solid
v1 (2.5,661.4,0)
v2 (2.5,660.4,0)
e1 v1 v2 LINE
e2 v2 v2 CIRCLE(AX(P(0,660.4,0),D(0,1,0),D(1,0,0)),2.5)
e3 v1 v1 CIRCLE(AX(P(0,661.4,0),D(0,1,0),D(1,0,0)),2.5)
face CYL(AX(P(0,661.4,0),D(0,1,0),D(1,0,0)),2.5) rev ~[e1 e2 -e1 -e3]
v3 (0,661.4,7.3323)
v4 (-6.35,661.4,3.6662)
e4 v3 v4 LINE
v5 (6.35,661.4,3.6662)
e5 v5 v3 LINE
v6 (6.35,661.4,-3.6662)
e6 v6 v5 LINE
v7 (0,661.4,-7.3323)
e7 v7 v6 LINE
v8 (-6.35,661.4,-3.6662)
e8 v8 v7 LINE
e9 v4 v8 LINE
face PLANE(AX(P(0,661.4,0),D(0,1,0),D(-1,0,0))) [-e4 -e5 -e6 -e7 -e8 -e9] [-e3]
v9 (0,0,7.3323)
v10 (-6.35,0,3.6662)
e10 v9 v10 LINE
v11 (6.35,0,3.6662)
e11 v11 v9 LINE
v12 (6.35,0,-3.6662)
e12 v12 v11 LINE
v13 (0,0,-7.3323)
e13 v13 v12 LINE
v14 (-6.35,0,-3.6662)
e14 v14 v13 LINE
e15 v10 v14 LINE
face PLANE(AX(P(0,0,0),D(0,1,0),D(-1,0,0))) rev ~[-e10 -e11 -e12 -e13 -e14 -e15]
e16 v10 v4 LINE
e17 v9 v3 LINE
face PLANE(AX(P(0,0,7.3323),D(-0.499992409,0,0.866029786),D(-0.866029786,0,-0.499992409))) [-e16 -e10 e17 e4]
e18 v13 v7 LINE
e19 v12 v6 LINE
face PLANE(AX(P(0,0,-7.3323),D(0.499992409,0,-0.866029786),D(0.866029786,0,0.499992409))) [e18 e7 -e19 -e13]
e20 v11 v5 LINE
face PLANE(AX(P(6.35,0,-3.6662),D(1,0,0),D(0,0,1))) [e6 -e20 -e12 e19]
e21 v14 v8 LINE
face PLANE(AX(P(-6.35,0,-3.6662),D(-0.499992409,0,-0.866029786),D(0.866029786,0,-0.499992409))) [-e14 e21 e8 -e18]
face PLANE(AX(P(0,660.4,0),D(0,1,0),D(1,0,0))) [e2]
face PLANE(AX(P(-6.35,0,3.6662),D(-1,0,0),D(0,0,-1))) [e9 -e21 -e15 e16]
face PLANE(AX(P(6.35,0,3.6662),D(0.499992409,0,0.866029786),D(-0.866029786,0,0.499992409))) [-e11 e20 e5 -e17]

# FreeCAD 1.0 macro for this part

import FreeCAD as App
import Part
import Sketcher

V = App.Vector
Q = App.Units.Quantity


def add_polygon(sketch, points):
    """Adds a closed chain of lines whose ends are joined by coincident constraints."""
    first, n = sketch.GeometryCount, len(points)
    for a, b in zip(points, points[1:] + points[:1]):
        sketch.addGeometry(Part.LineSegment(App.Vector(*a, 0), App.Vector(*b, 0)), False)
    for i in range(n):
        sketch.addConstraint(Sketcher.Constraint("Coincident", first + i, 2, first + (i + 1) % n, 1))

doc = App.newDocument("Part")
params = doc.addObject("Spreadsheet::Sheet", "Params")
for row, (alias, value) in enumerate([
    ("pad1_length", "661.4 mm"),
    ("sketch2_diameter", "5 mm"),
    ("pocket1_length", "1 mm"),
], start=1):
    params.set(f"A{row}", alias)
    params.set(f"B{row}", "=" + value)
    params.setAlias(f"B{row}", alias)

body = doc.addObject("PartDesign::Body", "Body")

sketch1 = doc.addObject("Sketcher::SketchObject", "Sketch")
body.addObject(sketch1)
sketch1.AttachmentSupport = (doc.XZ_Plane, [""])
sketch1.MapMode = "FlatFace"
add_polygon(sketch1, [(6, -4), (0, -7), (-6, -4), (-6, 4), (0, 7), (6, 4)])
sketch1.addConstraint(Sketcher.Constraint("Vertical", 2))
sketch1.addConstraint(Sketcher.Constraint("Vertical", 5))
sketch1.addConstraint(Sketcher.Constraint("Symmetric", 0, 2, 3, 2, -1, 1))
sketch1.addConstraint(Sketcher.Constraint("Symmetric", 1, 2, 4, 2, -1, 1))
sketch1.addConstraint(Sketcher.Constraint("PointOnObject", 0, 2, -2))
sketch1.addConstraint(Sketcher.Constraint("Parallel", 0, 3))
sketch1.addConstraint(Sketcher.Constraint("Horizontal", 2, 2, 4, 2))
sketch1.addConstraint(Sketcher.Constraint("DistanceX", 2, 2, 4, 2, Q("12.7 mm")))
sketch1.addConstraint(Sketcher.Constraint("Angle", 0, Q("-150.0005 deg")))
sketch1.addConstraint(Sketcher.Constraint("DistanceY", 2, 1, 2, 2, Q("7.3324 mm")))
pad1 = doc.addObject("PartDesign::Pad", "Pad")
body.addObject(pad1)
pad1.Profile = sketch1
pad1.setExpression("Length", "Params.pad1_length")
pad1.Reversed = True

sketch2 = doc.addObject("Sketcher::SketchObject", "Sketch001")
body.addObject(sketch2)
sketch2.AttachmentSupport = (doc.XZ_Plane, [""])
sketch2.MapMode = "FlatFace"
sketch2.AttachmentOffset = App.Placement(V(0, 0, -661.4), App.Rotation())
sketch2.addGeometry(Part.Circle(V(0, 0, 0), V(0, 0, 1), 2.5), False)
sketch2.addConstraint(Sketcher.Constraint("Coincident", 0, 3, -1, 1))
sketch2.addConstraint(Sketcher.Constraint("Diameter", 0, Q("5 mm")))
sketch2.setExpression("Constraints[1]", "Params.sketch2_diameter")
pocket1 = doc.addObject("PartDesign::Pocket", "Pocket")
body.addObject(pocket1)
pocket1.Profile = sketch2
pocket1.setExpression("Length", "Params.pocket1_length")
pocket1.Reversed = True

doc.recompute()
